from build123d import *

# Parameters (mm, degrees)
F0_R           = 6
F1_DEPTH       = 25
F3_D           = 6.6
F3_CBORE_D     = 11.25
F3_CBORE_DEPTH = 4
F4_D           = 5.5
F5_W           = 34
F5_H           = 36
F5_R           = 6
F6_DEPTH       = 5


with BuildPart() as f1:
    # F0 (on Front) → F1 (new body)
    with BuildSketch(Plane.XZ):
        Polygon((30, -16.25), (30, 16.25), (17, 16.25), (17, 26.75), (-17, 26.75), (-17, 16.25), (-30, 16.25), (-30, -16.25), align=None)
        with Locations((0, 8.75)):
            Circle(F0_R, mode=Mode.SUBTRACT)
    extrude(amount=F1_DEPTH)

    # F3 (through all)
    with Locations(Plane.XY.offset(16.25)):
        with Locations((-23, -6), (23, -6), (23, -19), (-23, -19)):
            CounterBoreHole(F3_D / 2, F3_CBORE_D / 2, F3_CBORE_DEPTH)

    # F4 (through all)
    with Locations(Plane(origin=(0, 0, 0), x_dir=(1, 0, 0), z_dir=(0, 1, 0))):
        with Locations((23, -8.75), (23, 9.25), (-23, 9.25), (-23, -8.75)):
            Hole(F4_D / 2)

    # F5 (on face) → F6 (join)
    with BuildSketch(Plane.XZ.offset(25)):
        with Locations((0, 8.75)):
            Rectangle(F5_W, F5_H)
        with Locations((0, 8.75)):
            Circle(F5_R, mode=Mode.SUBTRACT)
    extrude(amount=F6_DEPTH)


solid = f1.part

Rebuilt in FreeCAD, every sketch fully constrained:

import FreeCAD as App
import Part
import Sketcher

V = App.Vector
Q = App.Units.Quantity

doc = App.newDocument("Part")
params = doc.addObject("Spreadsheet::Sheet", "Params")
for row, (alias, value) in enumerate([
    ("sketch1_diameter", "12 mm"),
    ("sketch1_width", "13 mm"),
    ("sketch1_width2", "34 mm"),
    ("sketch1_height", "32.5 mm"),
    ("sketch1_height2", "10.5 mm"),
    ("pad1_length", "25 mm"),
    ("sketch2_diameter", "6.6 mm"),
    ("hole_diameter", "6.6 mm"),
    ("hole_cbore_diameter", "11.25 mm"),
    ("hole_cbore_depth", "4 mm"),
    ("sketch3_diameter", "5.5 mm"),
    ("hole2_diameter", "5.5 mm"),
    ("sketch4_diameter", "12 mm"),
    ("sketch4_width", "34 mm"),
    ("sketch4_height", "36 mm"),
    ("pad2_length", "5 mm"),
], start=1):
    params.set(f"A{row}", alias)
    params.set(f"B{row}", "=" + value)
    params.setAlias(f"B{row}", alias)

body = doc.addObject("PartDesign::Body", "Body")

# Sketch on XZ plane
sketch1 = body.newObject("Sketcher::SketchObject", "Sketch")
sketch1.AttachmentSupport = (doc.getObject("XZ_Plane"), [""])
sketch1.MapMode = "FlatFace"
sketch1.addGeometry(Part.LineSegment(V(30, -16.25, 0), V(30, 16.25, 0)), False)
sketch1.addGeometry(Part.LineSegment(V(30, 16.25, 0), V(17, 16.25, 0)), False)
sketch1.addGeometry(Part.LineSegment(V(17, 16.25, 0), V(17, 26.75, 0)), False)
sketch1.addGeometry(Part.LineSegment(V(17, 26.75, 0), V(-17, 26.75, 0)), False)
sketch1.addGeometry(Part.LineSegment(V(-17, 26.75, 0), V(-17, 16.25, 0)), False)
sketch1.addGeometry(Part.LineSegment(V(-17, 16.25, 0), V(-30, 16.25, 0)), False)
sketch1.addGeometry(Part.LineSegment(V(-30, 16.25, 0), V(-30, -16.25, 0)), False)
sketch1.addGeometry(Part.LineSegment(V(-30, -16.25, 0), V(30, -16.25, 0)), False)
sketch1.addGeometry(Part.Circle(V(0, 8.75, 0), V(0, 0, 1), 6), False)
sketch1.addConstraint(Sketcher.Constraint("Coincident", 0, 2, 1, 1))
sketch1.addConstraint(Sketcher.Constraint("Coincident", 1, 2, 2, 1))
sketch1.addConstraint(Sketcher.Constraint("Coincident", 2, 2, 3, 1))
sketch1.addConstraint(Sketcher.Constraint("Coincident", 3, 2, 4, 1))
sketch1.addConstraint(Sketcher.Constraint("Coincident", 4, 2, 5, 1))
sketch1.addConstraint(Sketcher.Constraint("Coincident", 5, 2, 6, 1))
sketch1.addConstraint(Sketcher.Constraint("Coincident", 6, 2, 7, 1))
sketch1.addConstraint(Sketcher.Constraint("Coincident", 7, 2, 0, 1))
sketch1.addConstraint(Sketcher.Constraint("Vertical", 0))
sketch1.addConstraint(Sketcher.Constraint("Horizontal", 1))
sketch1.addConstraint(Sketcher.Constraint("Vertical", 2))
sketch1.addConstraint(Sketcher.Constraint("Horizontal", 3))
sketch1.addConstraint(Sketcher.Constraint("Vertical", 4))
sketch1.addConstraint(Sketcher.Constraint("Horizontal", 5))
sketch1.addConstraint(Sketcher.Constraint("Vertical", 6))
sketch1.addConstraint(Sketcher.Constraint("Horizontal", 7))
sketch1.addConstraint(Sketcher.Constraint("Symmetric", 0, 2, 6, 2, -1, 1))
sketch1.addConstraint(Sketcher.Constraint("Symmetric", 1, 2, 4, 2, -2))
sketch1.addConstraint(Sketcher.Constraint("PointOnObject", 8, 3, -2))
sketch1.addConstraint(Sketcher.Constraint("Diameter", 8, Q("12 mm")))
sketch1.addConstraint(Sketcher.Constraint("DistanceX", 1, 2, 1, 1, Q("13 mm")))
sketch1.addConstraint(Sketcher.Constraint("DistanceX", 3, 2, 3, 1, Q("34 mm")))
sketch1.addConstraint(Sketcher.Constraint("DistanceY", 0, 1, 0, 2, Q("32.5 mm")))
sketch1.addConstraint(Sketcher.Constraint("DistanceY", 2, 1, 2, 2, Q("10.5 mm")))
sketch1.addConstraint(Sketcher.Constraint("DistanceY", 8, 3, 2, 2, Q("18 mm")))
sketch1.setExpression("Constraints[19]", "Params.sketch1_diameter")
sketch1.setExpression("Constraints[20]", "Params.sketch1_width")
sketch1.setExpression("Constraints[21]", "Params.sketch1_width2")
sketch1.setExpression("Constraints[22]", "Params.sketch1_height")
sketch1.setExpression("Constraints[23]", "Params.sketch1_height2")
pad1 = body.newObject("PartDesign::Pad", "Pad")
pad1.Profile = sketch1
pad1.setExpression("Length", "Params.pad1_length")

# Sketch on XY plane
sketch2 = body.newObject("Sketcher::SketchObject", "Sketch001")
sketch2.AttachmentSupport = (doc.getObject("XY_Plane"), [""])
sketch2.MapMode = "FlatFace"
sketch2.AttachmentOffset = App.Placement(V(0, 0, 16.25), App.Rotation())
sketch2.addGeometry(Part.Circle(V(-23, -6, 0), V(0, 0, 1), 3.3), False)
sketch2.addGeometry(Part.Circle(V(23, -6, 0), V(0, 0, 1), 3.3), False)
sketch2.addGeometry(Part.Circle(V(23, -19, 0), V(0, 0, 1), 3.3), False)
sketch2.addGeometry(Part.Circle(V(-23, -19, 0), V(0, 0, 1), 3.3), False)
sketch2.addConstraint(Sketcher.Constraint("Equal", 0, 1))
sketch2.addConstraint(Sketcher.Constraint("Equal", 1, 2))
sketch2.addConstraint(Sketcher.Constraint("Equal", 2, 3))
sketch2.addConstraint(Sketcher.Constraint("Symmetric", 0, 3, 1, 3, -2))
sketch2.addConstraint(Sketcher.Constraint("Symmetric", 2, 3, 3, 3, -2))
sketch2.addConstraint(Sketcher.Constraint("Vertical", 1, 3, 2, 3))
sketch2.addConstraint(Sketcher.Constraint("Diameter", 0, Q("6.6 mm")))
sketch2.addConstraint(Sketcher.Constraint("DistanceX", 0, 3, -1, 1, Q("23 mm")))
sketch2.addConstraint(Sketcher.Constraint("DistanceY", 0, 3, -1, 1, Q("6 mm")))
sketch2.addConstraint(Sketcher.Constraint("DistanceY", 2, 3, -1, 1, Q("19 mm")))
sketch2.setExpression("Constraints[6]", "Params.sketch2_diameter")
doc.recompute()
hole = body.newObject("PartDesign::Hole", "Hole")
hole.Profile = sketch2
hole.ThreadType = "None"
hole.setExpression("Diameter", "Params.hole_diameter")
hole.DepthType = "ThroughAll"
hole.HoleCutType = "Counterbore"
hole.setExpression("HoleCutDiameter", "Params.hole_cbore_diameter")
hole.setExpression("HoleCutDepth", "Params.hole_cbore_depth")

# Sketch on XZ plane
sketch3 = body.newObject("Sketcher::SketchObject", "Sketch002")
sketch3.AttachmentSupport = (doc.getObject("XZ_Plane"), [""])
sketch3.MapMode = "FlatFace"
sketch3.addGeometry(Part.Circle(V(23, 8.75, 0), V(0, 0, 1), 2.75), False)
sketch3.addGeometry(Part.Circle(V(23, -9.25, 0), V(0, 0, 1), 2.75), False)
sketch3.addGeometry(Part.Circle(V(-23, -9.25, 0), V(0, 0, 1), 2.75), False)
sketch3.addGeometry(Part.Circle(V(-23, 8.75, 0), V(0, 0, 1), 2.75), False)
sketch3.addConstraint(Sketcher.Constraint("Equal", 0, 1))
sketch3.addConstraint(Sketcher.Constraint("Equal", 1, 2))
sketch3.addConstraint(Sketcher.Constraint("Equal", 2, 3))
sketch3.addConstraint(Sketcher.Constraint("Symmetric", 1, 3, 2, 3, -2))
sketch3.addConstraint(Sketcher.Constraint("Symmetric", 0, 3, 3, 3, -2))
sketch3.addConstraint(Sketcher.Constraint("Vertical", 0, 3, 1, 3))
sketch3.addConstraint(Sketcher.Constraint("Diameter", 0, Q("5.5 mm")))
sketch3.addConstraint(Sketcher.Constraint("DistanceX", -1, 1, 0, 3, Q("23 mm")))
sketch3.addConstraint(Sketcher.Constraint("DistanceY", 1, 3, 0, 3, Q("18 mm")))
sketch3.addConstraint(Sketcher.Constraint("DistanceY", -1, 1, 0, 3, Q("8.75 mm")))
sketch3.setExpression("Constraints[6]", "Params.sketch3_diameter")
doc.recompute()
hole2 = body.newObject("PartDesign::Hole", "Hole001")
hole2.Profile = sketch3
hole2.ThreadType = "None"
hole2.setExpression("Diameter", "Params.hole2_diameter")
hole2.DepthType = "ThroughAll"
hole2.Reversed = True

# Sketch on XZ plane
sketch4 = body.newObject("Sketcher::SketchObject", "Sketch003")
sketch4.AttachmentSupport = (doc.getObject("XZ_Plane"), [""])
sketch4.MapMode = "FlatFace"
sketch4.AttachmentOffset = App.Placement(V(0, 0, 25), App.Rotation())
sketch4.addGeometry(Part.LineSegment(V(-17, 26.75, 0), V(-17, -9.25, 0)), False)
sketch4.addGeometry(Part.LineSegment(V(-17, -9.25, 0), V(17, -9.25, 0)), False)
sketch4.addGeometry(Part.LineSegment(V(17, -9.25, 0), V(17, 26.75, 0)), False)
sketch4.addGeometry(Part.LineSegment(V(17, 26.75, 0), V(-17, 26.75, 0)), False)
sketch4.addGeometry(Part.Circle(V(0, 8.75, 0), V(0, 0, 1), 6), False)
sketch4.addConstraint(Sketcher.Constraint("Coincident", 0, 2, 1, 1))
sketch4.addConstraint(Sketcher.Constraint("Coincident", 1, 2, 2, 1))
sketch4.addConstraint(Sketcher.Constraint("Coincident", 2, 2, 3, 1))
sketch4.addConstraint(Sketcher.Constraint("Coincident", 3, 2, 0, 1))
sketch4.addConstraint(Sketcher.Constraint("Vertical", 0))
sketch4.addConstraint(Sketcher.Constraint("Horizontal", 1))
sketch4.addConstraint(Sketcher.Constraint("Vertical", 2))
sketch4.addConstraint(Sketcher.Constraint("Horizontal", 3))
sketch4.addConstraint(Sketcher.Constraint("PointOnObject", 4, 3, -2))
sketch4.addConstraint(Sketcher.Constraint("Diameter", 4, Q("12 mm")))
sketch4.addConstraint(Sketcher.Constraint("DistanceX", 1, 1, 1, 2, Q("34 mm")))
sketch4.addConstraint(Sketcher.Constraint("DistanceY", 0, 2, 0, 1, Q("36 mm")))
sketch4.addConstraint(Sketcher.Constraint("DistanceX", 0, 2, -1, 1, Q("17 mm")))
sketch4.addConstraint(Sketcher.Constraint("DistanceY", 0, 2, 4, 3, Q("18 mm")))
sketch4.addConstraint(Sketcher.Constraint("DistanceY", -1, 1, 4, 3, Q("8.75 mm")))
sketch4.setExpression("Constraints[9]", "Params.sketch4_diameter")
sketch4.setExpression("Constraints[10]", "Params.sketch4_width")
sketch4.setExpression("Constraints[11]", "Params.sketch4_height")
pad2 = body.newObject("PartDesign::Pad", "Pad001")
pad2.Profile = sketch4
pad2.setExpression("Length", "Params.pad2_length")

doc.recompute()
